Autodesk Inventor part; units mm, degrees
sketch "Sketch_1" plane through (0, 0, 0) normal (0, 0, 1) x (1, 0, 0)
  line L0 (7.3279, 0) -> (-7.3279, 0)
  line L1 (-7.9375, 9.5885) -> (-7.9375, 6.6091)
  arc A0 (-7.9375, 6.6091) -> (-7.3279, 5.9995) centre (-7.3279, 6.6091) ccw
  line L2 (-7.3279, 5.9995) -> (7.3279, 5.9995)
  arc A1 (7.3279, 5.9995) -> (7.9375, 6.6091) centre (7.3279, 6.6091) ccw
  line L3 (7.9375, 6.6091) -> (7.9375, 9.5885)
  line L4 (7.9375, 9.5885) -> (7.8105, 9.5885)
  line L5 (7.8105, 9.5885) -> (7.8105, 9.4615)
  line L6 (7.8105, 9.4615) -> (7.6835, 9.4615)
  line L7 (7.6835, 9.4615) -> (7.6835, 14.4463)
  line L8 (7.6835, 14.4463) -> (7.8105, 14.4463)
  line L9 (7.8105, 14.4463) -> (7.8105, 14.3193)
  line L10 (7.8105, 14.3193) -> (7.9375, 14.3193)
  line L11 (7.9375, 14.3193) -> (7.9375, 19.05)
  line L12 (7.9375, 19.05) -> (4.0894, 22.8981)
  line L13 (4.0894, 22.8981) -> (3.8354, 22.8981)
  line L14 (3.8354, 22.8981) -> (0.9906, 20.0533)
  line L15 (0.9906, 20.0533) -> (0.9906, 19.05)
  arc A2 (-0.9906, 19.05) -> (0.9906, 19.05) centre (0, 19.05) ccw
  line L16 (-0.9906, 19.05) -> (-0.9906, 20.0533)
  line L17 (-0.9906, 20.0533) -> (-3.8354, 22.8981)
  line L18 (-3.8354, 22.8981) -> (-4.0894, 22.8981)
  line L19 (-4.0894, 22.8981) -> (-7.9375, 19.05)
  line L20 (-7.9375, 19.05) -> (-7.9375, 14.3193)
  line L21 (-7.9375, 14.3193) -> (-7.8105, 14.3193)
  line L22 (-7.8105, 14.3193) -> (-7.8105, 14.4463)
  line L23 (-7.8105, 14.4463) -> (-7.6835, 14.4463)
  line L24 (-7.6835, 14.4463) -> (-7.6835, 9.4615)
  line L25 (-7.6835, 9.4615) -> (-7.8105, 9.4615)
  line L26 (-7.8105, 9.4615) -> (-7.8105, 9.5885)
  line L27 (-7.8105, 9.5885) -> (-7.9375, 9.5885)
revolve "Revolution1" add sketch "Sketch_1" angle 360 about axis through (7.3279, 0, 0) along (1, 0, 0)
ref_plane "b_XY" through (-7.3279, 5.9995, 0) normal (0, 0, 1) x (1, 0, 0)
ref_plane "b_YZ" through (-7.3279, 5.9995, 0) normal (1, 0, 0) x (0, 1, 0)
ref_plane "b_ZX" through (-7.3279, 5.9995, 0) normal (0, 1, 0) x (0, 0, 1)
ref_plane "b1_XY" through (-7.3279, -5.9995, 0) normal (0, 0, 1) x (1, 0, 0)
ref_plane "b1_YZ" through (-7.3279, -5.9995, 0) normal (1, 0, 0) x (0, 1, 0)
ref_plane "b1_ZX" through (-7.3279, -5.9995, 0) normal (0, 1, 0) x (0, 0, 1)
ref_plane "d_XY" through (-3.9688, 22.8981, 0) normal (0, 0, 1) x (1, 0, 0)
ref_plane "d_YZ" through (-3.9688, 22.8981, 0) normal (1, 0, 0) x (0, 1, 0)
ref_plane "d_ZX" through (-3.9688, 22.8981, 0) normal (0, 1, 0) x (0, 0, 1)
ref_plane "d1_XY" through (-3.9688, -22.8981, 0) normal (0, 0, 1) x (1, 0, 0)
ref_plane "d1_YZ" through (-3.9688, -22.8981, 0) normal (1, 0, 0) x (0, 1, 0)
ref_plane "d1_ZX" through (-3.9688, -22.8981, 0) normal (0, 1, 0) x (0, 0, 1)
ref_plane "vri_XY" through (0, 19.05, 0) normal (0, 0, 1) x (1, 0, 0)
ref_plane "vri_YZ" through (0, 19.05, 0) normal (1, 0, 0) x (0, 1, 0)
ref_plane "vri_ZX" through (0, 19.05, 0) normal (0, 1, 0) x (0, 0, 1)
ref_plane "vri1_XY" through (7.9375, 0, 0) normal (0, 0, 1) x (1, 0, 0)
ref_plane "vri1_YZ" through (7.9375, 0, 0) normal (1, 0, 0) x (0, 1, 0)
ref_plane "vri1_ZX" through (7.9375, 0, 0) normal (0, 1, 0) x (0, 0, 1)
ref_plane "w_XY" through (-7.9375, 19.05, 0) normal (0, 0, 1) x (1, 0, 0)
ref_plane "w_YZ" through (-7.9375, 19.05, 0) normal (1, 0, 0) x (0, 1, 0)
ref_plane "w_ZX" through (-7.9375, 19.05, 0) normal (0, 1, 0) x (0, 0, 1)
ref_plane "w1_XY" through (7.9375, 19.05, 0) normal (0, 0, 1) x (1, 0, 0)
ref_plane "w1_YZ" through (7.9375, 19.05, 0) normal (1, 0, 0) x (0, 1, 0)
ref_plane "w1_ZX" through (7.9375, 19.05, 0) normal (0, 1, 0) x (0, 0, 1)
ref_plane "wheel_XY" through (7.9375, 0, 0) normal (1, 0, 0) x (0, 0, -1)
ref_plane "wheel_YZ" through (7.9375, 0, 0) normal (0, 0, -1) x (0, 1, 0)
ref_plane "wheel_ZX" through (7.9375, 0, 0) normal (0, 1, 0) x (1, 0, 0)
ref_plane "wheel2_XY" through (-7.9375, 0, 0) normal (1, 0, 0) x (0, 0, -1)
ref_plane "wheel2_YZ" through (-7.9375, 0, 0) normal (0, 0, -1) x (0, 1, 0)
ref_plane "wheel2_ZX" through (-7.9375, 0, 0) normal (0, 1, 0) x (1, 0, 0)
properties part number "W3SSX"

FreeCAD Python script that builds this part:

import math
import FreeCAD as App
import Part
import Sketcher
from FreeCAD import Vector
Q = App.Units.Quantity

doc = App.newDocument("Part")
body = doc.addObject("PartDesign::Body", "Body")

# Sketch on XY plane
sketch1 = body.newObject("Sketcher::SketchObject", "Sketch")
sketch1.AttachmentSupport = (doc.getObject("XY_Plane"), [""])
sketch1.MapMode = "FlatFace"
sketch1.addGeometry(Part.LineSegment(Vector(-7.81, 9.59, 0), Vector(-7.94, 9.59, 0)), False)
sketch1.addGeometry(Part.LineSegment(Vector(-7.94, 9.59, 0), Vector(-7.94, 6.61, 0)), False)
sketch1.addGeometry(Part.ArcOfCircle(Part.Circle(Vector(-7.33, 6.61, 0), Vector(0, 0, 1), 0.61), math.radians(180), math.radians(270)), False)
sketch1.addGeometry(Part.LineSegment(Vector(-7.33, 6, 0), Vector(7.33, 6, 0)), False)
sketch1.addGeometry(Part.ArcOfCircle(Part.Circle(Vector(7.33, 6.61, 0), Vector(0, 0, 1), 0.61), math.radians(-90), math.radians(0)), False)
sketch1.addGeometry(Part.LineSegment(Vector(7.94, 6.61, 0), Vector(7.94, 9.59, 0)), False)
sketch1.addGeometry(Part.LineSegment(Vector(7.94, 9.59, 0), Vector(7.81, 9.59, 0)), False)
sketch1.addGeometry(Part.LineSegment(Vector(7.81, 9.59, 0), Vector(7.81, 9.46, 0)), False)
sketch1.addGeometry(Part.LineSegment(Vector(7.81, 9.46, 0), Vector(7.68, 9.46, 0)), False)
sketch1.addGeometry(Part.LineSegment(Vector(7.68, 9.46, 0), Vector(7.68, 14.45, 0)), False)
sketch1.addGeometry(Part.LineSegment(Vector(7.68, 14.45, 0), Vector(7.81, 14.45, 0)), False)
sketch1.addGeometry(Part.LineSegment(Vector(7.81, 14.45, 0), Vector(7.81, 14.32, 0)), False)
sketch1.addGeometry(Part.LineSegment(Vector(7.81, 14.32, 0), Vector(7.94, 14.32, 0)), False)
sketch1.addGeometry(Part.LineSegment(Vector(7.94, 14.32, 0), Vector(7.94, 19.05, 0)), False)
sketch1.addGeometry(Part.LineSegment(Vector(7.94, 19.05, 0), Vector(4.09, 22.9, 0)), False)
sketch1.addGeometry(Part.LineSegment(Vector(4.09, 22.9, 0), Vector(3.84, 22.9, 0)), False)
sketch1.addGeometry(Part.LineSegment(Vector(3.84, 22.9, 0), Vector(0.99, 20.05, 0)), False)
sketch1.addGeometry(Part.LineSegment(Vector(0.99, 20.05, 0), Vector(0.99, 19.05, 0)), False)
sketch1.addGeometry(Part.ArcOfCircle(Part.Circle(Vector(0, 19.05, 0), Vector(0, 0, 1), 0.99), math.radians(180), math.radians(360)), False)
sketch1.addGeometry(Part.LineSegment(Vector(-0.99, 19.05, 0), Vector(-0.99, 20.05, 0)), False)
sketch1.addGeometry(Part.LineSegment(Vector(-0.99, 20.05, 0), Vector(-3.84, 22.9, 0)), False)
sketch1.addGeometry(Part.LineSegment(Vector(-3.84, 22.9, 0), Vector(-4.09, 22.9, 0)), False)
sketch1.addGeometry(Part.LineSegment(Vector(-4.09, 22.9, 0), Vector(-7.94, 19.05, 0)), False)
sketch1.addGeometry(Part.LineSegment(Vector(-7.94, 19.05, 0), Vector(-7.94, 14.32, 0)), False)
sketch1.addGeometry(Part.LineSegment(Vector(-7.94, 14.32, 0), Vector(-7.81, 14.32, 0)), False)
sketch1.addGeometry(Part.LineSegment(Vector(-7.81, 14.32, 0), Vector(-7.81, 14.45, 0)), False)
sketch1.addGeometry(Part.LineSegment(Vector(-7.81, 14.45, 0), Vector(-7.68, 14.45, 0)), False)
sketch1.addGeometry(Part.LineSegment(Vector(-7.68, 14.45, 0), Vector(-7.68, 9.46, 0)), False)
sketch1.addGeometry(Part.LineSegment(Vector(-7.68, 9.46, 0), Vector(-7.81, 9.46, 0)), False)
sketch1.addGeometry(Part.LineSegment(Vector(-7.81, 9.46, 0), Vector(-7.81, 9.59, 0)), False)
sketch1.addConstraint(Sketcher.Constraint("Coincident", 0, 2, 1, 1))
sketch1.addConstraint(Sketcher.Constraint("Tangent", 1, 2, 2, 1))
sketch1.addConstraint(Sketcher.Constraint("Tangent", 2, 2, 3, 1))
sketch1.addConstraint(Sketcher.Constraint("Tangent", 3, 2, 4, 1))
sketch1.addConstraint(Sketcher.Constraint("Tangent", 4, 2, 5, 1))
sketch1.addConstraint(Sketcher.Constraint("Coincident", 5, 2, 6, 1))
sketch1.addConstraint(Sketcher.Constraint("Coincident", 6, 2, 7, 1))
sketch1.addConstraint(Sketcher.Constraint("Coincident", 7, 2, 8, 1))
sketch1.addConstraint(Sketcher.Constraint("Coincident", 8, 2, 9, 1))
sketch1.addConstraint(Sketcher.Constraint("Coincident", 9, 2, 10, 1))
sketch1.addConstraint(Sketcher.Constraint("Coincident", 10, 2, 11, 1))
sketch1.addConstraint(Sketcher.Constraint("Coincident", 11, 2, 12, 1))
sketch1.addConstraint(Sketcher.Constraint("Coincident", 12, 2, 13, 1))
sketch1.addConstraint(Sketcher.Constraint("Coincident", 13, 2, 14, 1))
sketch1.addConstraint(Sketcher.Constraint("Coincident", 14, 2, 15, 1))
sketch1.addConstraint(Sketcher.Constraint("Coincident", 15, 2, 16, 1))
sketch1.addConstraint(Sketcher.Constraint("Coincident", 16, 2, 17, 1))
sketch1.addConstraint(Sketcher.Constraint("Tangent", 17, 2, 18, 2))
sketch1.addConstraint(Sketcher.Constraint("Tangent", 18, 1, 19, 1))
sketch1.addConstraint(Sketcher.Constraint("Coincident", 19, 2, 20, 1))
sketch1.addConstraint(Sketcher.Constraint("Coincident", 20, 2, 21, 1))
sketch1.addConstraint(Sketcher.Constraint("Coincident", 21, 2, 22, 1))
sketch1.addConstraint(Sketcher.Constraint("Coincident", 22, 2, 23, 1))
sketch1.addConstraint(Sketcher.Constraint("Coincident", 23, 2, 24, 1))
sketch1.addConstraint(Sketcher.Constraint("Coincident", 24, 2, 25, 1))
sketch1.addConstraint(Sketcher.Constraint("Coincident", 25, 2, 26, 1))
sketch1.addConstraint(Sketcher.Constraint("Coincident", 26, 2, 27, 1))
sketch1.addConstraint(Sketcher.Constraint("Coincident", 27, 2, 28, 1))
sketch1.addConstraint(Sketcher.Constraint("Coincident", 28, 2, 29, 1))
sketch1.addConstraint(Sketcher.Constraint("Coincident", 29, 2, 0, 1))
sketch1.addConstraint(Sketcher.Constraint("Horizontal", 0))
sketch1.addConstraint(Sketcher.Constraint("Vertical", 1))
sketch1.addConstraint(Sketcher.Constraint("Horizontal", 3))
sketch1.addConstraint(Sketcher.Constraint("Vertical", 5))
sketch1.addConstraint(Sketcher.Constraint("Horizontal", 6))
sketch1.addConstraint(Sketcher.Constraint("Vertical", 7))
sketch1.addConstraint(Sketcher.Constraint("Horizontal", 8))
sketch1.addConstraint(Sketcher.Constraint("Vertical", 9))
sketch1.addConstraint(Sketcher.Constraint("Horizontal", 10))
sketch1.addConstraint(Sketcher.Constraint("Vertical", 11))
sketch1.addConstraint(Sketcher.Constraint("Horizontal", 12))
sketch1.addConstraint(Sketcher.Constraint("Vertical", 13))
sketch1.addConstraint(Sketcher.Constraint("Horizontal", 15))
sketch1.addConstraint(Sketcher.Constraint("Vertical", 17))
sketch1.addConstraint(Sketcher.Constraint("Vertical", 19))
sketch1.addConstraint(Sketcher.Constraint("Horizontal", 21))
sketch1.addConstraint(Sketcher.Constraint("Vertical", 23))
sketch1.addConstraint(Sketcher.Constraint("Horizontal", 24))
sketch1.addConstraint(Sketcher.Constraint("Vertical", 25))
sketch1.addConstraint(Sketcher.Constraint("Horizontal", 26))
sketch1.addConstraint(Sketcher.Constraint("Vertical", 27))
sketch1.addConstraint(Sketcher.Constraint("Horizontal", 28))
sketch1.addConstraint(Sketcher.Constraint("Vertical", 29))
sketch1.addConstraint(Sketcher.Constraint("Equal", 2, 4))
sketch1.addConstraint(Sketcher.Constraint("Symmetric", 0, 2, 5, 2, -2))
sketch1.addConstraint(Sketcher.Constraint("Symmetric", 16, 2, 19, 2, -2))
sketch1.addConstraint(Sketcher.Constraint("Symmetric", 15, 2, 20, 2, -2))
sketch1.addConstraint(Sketcher.Constraint("Symmetric", 13, 2, 22, 2, -2))
sketch1.addConstraint(Sketcher.Constraint("Symmetric", 11, 2, 24, 2, -2))
sketch1.addConstraint(Sketcher.Constraint("Symmetric", 9, 2, 26, 2, -2))
sketch1.addConstraint(Sketcher.Constraint("Symmetric", 7, 2, 28, 2, -2))
sketch1.addConstraint(Sketcher.Constraint("Perpendicular", 14, 16))
sketch1.addConstraint(Sketcher.Constraint("Perpendicular", 16, 20))
sketch1.addConstraint(Sketcher.Constraint("Perpendicular", 20, 22))
sketch1.addConstraint(Sketcher.Constraint("Horizontal", 18, 3, 13, 2))
sketch1.addConstraint(Sketcher.Constraint("Vertical", 7, 2, 10, 2))
sketch1.addConstraint(Sketcher.Constraint("Vertical", 5, 2, 12, 2))
sketch1.addConstraint(Sketcher.Constraint("Equal", 6, 8))
sketch1.addConstraint(Sketcher.Constraint("Equal", 28, 7))
sketch1.addConstraint(Sketcher.Constraint("Equal", 7, 11))
sketch1.addConstraint(Sketcher.Constraint("Radius", 2, Q("0.024 in")))
sketch1.addConstraint(Sketcher.Constraint("Radius", 18, Q("0.039 in")))
sketch1.addConstraint(Sketcher.Constraint("DistanceX", 15, 2, 15, 1, Q("0.01 in")))
sketch1.addConstraint(Sketcher.Constraint("DistanceX", 18, 1, 14, 2, Q("0.2 in")))
sketch1.addConstraint(Sketcher.Constraint("DistanceX", 0, 2, 0, 1, Q("0.005 in")))
sketch1.addConstraint(Sketcher.Constraint("DistanceX", 3, 1, 3, 2, Q("0.577 in")))
sketch1.addConstraint(Sketcher.Constraint("DistanceY", -1, 1, 18, 3, Q("0.75 in")))
sketch1.addConstraint(Sketcher.Constraint("DistanceY", 1, 2, 1, 1, Q("0.1173 in")))
sketch1.addConstraint(Sketcher.Constraint("DistanceY", 9, 1, 9, 2, Q("4.9848 mm")))
sketch1.addConstraint(Sketcher.Constraint("DistanceY", 13, 1, 13, 2, Q("4.7307 mm")))
revolution = body.newObject("PartDesign::Revolution", "Revolution")
revolution.Profile = sketch1
revolution.ReferenceAxis = (sketch1, ["H_Axis"])
revolution.Angle = 360

doc.recompute()
